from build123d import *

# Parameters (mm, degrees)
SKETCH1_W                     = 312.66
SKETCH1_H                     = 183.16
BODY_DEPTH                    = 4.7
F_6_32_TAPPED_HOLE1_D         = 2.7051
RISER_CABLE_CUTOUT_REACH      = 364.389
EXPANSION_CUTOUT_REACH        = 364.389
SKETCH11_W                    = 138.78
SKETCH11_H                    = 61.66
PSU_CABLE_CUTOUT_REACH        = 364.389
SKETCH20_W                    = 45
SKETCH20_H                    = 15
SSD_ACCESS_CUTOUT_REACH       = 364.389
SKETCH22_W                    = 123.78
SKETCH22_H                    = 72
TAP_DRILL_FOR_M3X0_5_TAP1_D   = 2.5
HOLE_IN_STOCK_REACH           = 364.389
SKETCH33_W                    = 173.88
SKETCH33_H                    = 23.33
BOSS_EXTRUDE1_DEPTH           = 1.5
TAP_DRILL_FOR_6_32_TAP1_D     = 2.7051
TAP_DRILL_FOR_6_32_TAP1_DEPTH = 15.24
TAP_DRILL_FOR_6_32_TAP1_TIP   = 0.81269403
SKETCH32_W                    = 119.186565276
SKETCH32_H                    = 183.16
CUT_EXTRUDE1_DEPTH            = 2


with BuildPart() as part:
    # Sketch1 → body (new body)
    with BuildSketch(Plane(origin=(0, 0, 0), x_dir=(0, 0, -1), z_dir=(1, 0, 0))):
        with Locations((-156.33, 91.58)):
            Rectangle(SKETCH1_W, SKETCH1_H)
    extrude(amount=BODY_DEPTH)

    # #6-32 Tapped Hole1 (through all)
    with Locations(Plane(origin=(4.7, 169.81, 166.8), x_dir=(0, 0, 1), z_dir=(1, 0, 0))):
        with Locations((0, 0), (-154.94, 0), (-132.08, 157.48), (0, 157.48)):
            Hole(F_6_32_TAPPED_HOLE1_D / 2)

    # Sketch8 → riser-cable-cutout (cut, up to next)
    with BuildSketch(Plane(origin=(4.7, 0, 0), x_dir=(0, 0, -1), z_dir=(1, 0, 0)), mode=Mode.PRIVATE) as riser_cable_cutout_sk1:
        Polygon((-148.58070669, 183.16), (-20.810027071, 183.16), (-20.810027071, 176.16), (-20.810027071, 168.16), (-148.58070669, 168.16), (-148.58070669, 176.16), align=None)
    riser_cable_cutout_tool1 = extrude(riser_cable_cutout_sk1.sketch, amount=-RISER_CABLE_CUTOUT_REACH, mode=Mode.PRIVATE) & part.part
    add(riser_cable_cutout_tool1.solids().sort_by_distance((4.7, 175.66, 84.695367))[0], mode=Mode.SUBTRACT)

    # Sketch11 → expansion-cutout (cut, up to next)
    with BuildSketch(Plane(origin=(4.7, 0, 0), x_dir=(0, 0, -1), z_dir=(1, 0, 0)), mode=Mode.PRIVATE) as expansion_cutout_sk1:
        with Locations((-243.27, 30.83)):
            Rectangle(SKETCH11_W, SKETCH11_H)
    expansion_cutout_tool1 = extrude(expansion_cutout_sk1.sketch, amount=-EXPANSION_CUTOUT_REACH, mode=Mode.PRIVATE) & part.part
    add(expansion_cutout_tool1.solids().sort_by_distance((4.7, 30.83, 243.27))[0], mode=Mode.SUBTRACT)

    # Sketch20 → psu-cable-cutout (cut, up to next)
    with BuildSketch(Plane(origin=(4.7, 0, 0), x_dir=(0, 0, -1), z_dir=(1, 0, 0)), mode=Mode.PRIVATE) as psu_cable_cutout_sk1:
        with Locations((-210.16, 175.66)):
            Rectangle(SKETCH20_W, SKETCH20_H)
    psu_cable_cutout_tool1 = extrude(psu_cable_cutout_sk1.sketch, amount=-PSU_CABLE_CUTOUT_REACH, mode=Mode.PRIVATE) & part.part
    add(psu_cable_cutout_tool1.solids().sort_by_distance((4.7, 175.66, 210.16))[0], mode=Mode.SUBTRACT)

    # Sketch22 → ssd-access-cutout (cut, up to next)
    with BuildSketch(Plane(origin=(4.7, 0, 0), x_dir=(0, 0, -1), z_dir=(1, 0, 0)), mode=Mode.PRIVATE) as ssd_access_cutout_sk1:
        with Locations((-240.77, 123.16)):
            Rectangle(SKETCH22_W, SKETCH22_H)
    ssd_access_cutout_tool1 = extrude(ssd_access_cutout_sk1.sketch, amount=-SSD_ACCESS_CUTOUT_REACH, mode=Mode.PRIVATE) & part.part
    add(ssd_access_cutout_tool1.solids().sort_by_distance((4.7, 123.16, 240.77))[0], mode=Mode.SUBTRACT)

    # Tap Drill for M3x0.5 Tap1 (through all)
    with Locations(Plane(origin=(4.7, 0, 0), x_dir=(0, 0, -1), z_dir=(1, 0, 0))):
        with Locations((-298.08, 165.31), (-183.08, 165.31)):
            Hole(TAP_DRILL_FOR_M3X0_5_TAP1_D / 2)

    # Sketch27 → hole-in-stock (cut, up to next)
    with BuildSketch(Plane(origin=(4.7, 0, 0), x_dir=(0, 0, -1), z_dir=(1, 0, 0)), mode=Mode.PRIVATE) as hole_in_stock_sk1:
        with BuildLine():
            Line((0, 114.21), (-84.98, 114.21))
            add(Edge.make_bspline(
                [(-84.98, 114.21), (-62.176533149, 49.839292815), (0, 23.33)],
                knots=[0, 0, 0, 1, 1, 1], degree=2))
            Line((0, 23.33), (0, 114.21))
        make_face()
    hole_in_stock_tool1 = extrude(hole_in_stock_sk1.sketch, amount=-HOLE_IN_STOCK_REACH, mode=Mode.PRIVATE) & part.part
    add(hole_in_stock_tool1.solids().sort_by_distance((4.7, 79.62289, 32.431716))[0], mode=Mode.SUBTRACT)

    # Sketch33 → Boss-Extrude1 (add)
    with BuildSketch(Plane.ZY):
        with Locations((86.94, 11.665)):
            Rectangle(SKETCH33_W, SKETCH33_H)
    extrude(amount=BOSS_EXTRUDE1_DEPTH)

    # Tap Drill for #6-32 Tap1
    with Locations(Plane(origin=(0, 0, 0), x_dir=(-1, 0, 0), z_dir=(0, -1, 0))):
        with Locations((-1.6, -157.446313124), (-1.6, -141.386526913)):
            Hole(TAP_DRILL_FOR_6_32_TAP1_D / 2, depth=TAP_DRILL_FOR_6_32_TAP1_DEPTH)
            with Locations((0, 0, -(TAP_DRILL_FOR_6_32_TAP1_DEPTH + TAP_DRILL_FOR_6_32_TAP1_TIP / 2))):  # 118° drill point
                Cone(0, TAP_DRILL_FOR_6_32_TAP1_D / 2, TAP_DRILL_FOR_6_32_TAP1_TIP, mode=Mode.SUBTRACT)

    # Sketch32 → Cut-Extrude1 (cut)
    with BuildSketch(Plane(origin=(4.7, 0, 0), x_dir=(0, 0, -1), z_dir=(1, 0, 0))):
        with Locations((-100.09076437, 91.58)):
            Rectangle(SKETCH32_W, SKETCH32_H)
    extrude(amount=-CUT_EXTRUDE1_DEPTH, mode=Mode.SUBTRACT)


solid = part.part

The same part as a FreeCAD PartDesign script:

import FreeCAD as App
import Part
import Sketcher
Q = App.Units.Quantity

doc = App.newDocument("Part")
body = doc.addObject("PartDesign::Body", "Body")

sketch1 = body.newObject("Sketcher::SketchObject", "Sketch")
sketch1.AttachmentSupport = (doc.getObject("YZ_Plane"), [""])
sketch1.MapMode = "FlatFace"
sketch1.addGeometry(Part.LineSegment(App.Vector(183, 313, 0), App.Vector(0, 313, 0)), False)
sketch1.addGeometry(Part.LineSegment(App.Vector(0, 313, 0), App.Vector(0, 0, 0)), False)
sketch1.addGeometry(Part.LineSegment(App.Vector(0, 0, 0), App.Vector(183, 0, 0)), False)
sketch1.addGeometry(Part.LineSegment(App.Vector(183, 0, 0), App.Vector(183, 313, 0)), False)
sketch1.addConstraint(Sketcher.Constraint("Coincident", 0, 2, 1, 1))
sketch1.addConstraint(Sketcher.Constraint("Coincident", 1, 2, 2, 1))
sketch1.addConstraint(Sketcher.Constraint("Coincident", 2, 2, 3, 1))
sketch1.addConstraint(Sketcher.Constraint("Coincident", 3, 2, 0, 1))
sketch1.addConstraint(Sketcher.Constraint("Horizontal", 0))
sketch1.addConstraint(Sketcher.Constraint("Vertical", 1))
sketch1.addConstraint(Sketcher.Constraint("Horizontal", 2))
sketch1.addConstraint(Sketcher.Constraint("Vertical", 3))
sketch1.addConstraint(Sketcher.Constraint("Coincident", 1, 2, -1, 1))
sketch1.addConstraint(Sketcher.Constraint("DistanceX", 0, 2, 0, 1, Q("183.16 mm")))
sketch1.addConstraint(Sketcher.Constraint("DistanceY", 1, 2, 1, 1, Q("312.66 mm")))
pad1 = body.newObject("PartDesign::Pad", "Pad")
pad1.Profile = sketch1
pad1.Length = 4.7

sketch2 = body.newObject("Sketcher::SketchObject", "Sketch001")
sketch2.AttachmentSupport = (doc.getObject("YZ_Plane"), [""])
sketch2.MapMode = "FlatFace"
sketch2.AttachmentOffset = App.Placement(App.Vector(0, 0, 4.7), App.Rotation())
sketch2.addGeometry(Part.Circle(App.Vector(169.8, 166.8, 0), App.Vector(0, 0, 1), 1.4), False)
sketch2.addGeometry(Part.Circle(App.Vector(169.8, 11.9, 0), App.Vector(0, 0, 1), 1.4), False)
sketch2.addGeometry(Part.Circle(App.Vector(12.3, 34.7, 0), App.Vector(0, 0, 1), 1.4), False)
sketch2.addGeometry(Part.Circle(App.Vector(12.3, 166.8, 0), App.Vector(0, 0, 1), 1.4), False)
sketch2.addConstraint(Sketcher.Constraint("Equal", 0, 1))
sketch2.addConstraint(Sketcher.Constraint("Equal", 1, 2))
sketch2.addConstraint(Sketcher.Constraint("Equal", 2, 3))
sketch2.addConstraint(Sketcher.Constraint("Horizontal", 0, 3, 3, 3))
sketch2.addConstraint(Sketcher.Constraint("Vertical", 0, 3, 1, 3))
sketch2.addConstraint(Sketcher.Constraint("Vertical", 2, 3, 3, 3))
sketch2.addConstraint(Sketcher.Constraint("Diameter", 0, Q("2.7051 mm")))
sketch2.addConstraint(Sketcher.Constraint("DistanceY", -1, 1, 0, 3, Q("166.8 mm")))
sketch2.addConstraint(Sketcher.Constraint("DistanceX", -1, 1, 0, 3, Q("169.81 mm")))
sketch2.addConstraint(Sketcher.Constraint("DistanceY", -1, 1, 1, 3, Q("11.86 mm")))
sketch2.addConstraint(Sketcher.Constraint("DistanceX", -1, 1, 2, 3, Q("12.33 mm")))
sketch2.addConstraint(Sketcher.Constraint("DistanceY", -1, 1, 2, 3, Q("34.72 mm")))
doc.recompute()
hole = body.newObject("PartDesign::Hole", "Hole")
hole.Profile = sketch2
hole.ThreadType = "None"
hole.Diameter = 2.7051
hole.DepthType = "ThroughAll"

sketch3 = body.newObject("Sketcher::SketchObject", "Sketch002")
sketch3.AttachmentSupport = (doc.getObject("YZ_Plane"), [""])
sketch3.MapMode = "FlatFace"
sketch3.AttachmentOffset = App.Placement(App.Vector(0, 0, 4.7), App.Rotation())
sketch3.addGeometry(Part.LineSegment(App.Vector(183, 21, 0), App.Vector(183, 149, 0)), False)
sketch3.addGeometry(Part.LineSegment(App.Vector(183, 149, 0), App.Vector(168, 149, 0)), False)
sketch3.addGeometry(Part.LineSegment(App.Vector(168, 149, 0), App.Vector(168, 21, 0)), False)
sketch3.addGeometry(Part.LineSegment(App.Vector(168, 21, 0), App.Vector(183, 21, 0)), False)
sketch3.addConstraint(Sketcher.Constraint("Coincident", 0, 2, 1, 1))
sketch3.addConstraint(Sketcher.Constraint("Coincident", 1, 2, 2, 1))
sketch3.addConstraint(Sketcher.Constraint("Coincident", 2, 2, 3, 1))
sketch3.addConstraint(Sketcher.Constraint("Coincident", 3, 2, 0, 1))
sketch3.addConstraint(Sketcher.Constraint("Vertical", 0))
sketch3.addConstraint(Sketcher.Constraint("Horizontal", 1))
sketch3.addConstraint(Sketcher.Constraint("Vertical", 2))
sketch3.addConstraint(Sketcher.Constraint("Horizontal", 3))
sketch3.addConstraint(Sketcher.Constraint("DistanceX", 1, 2, 1, 1, Q("15 mm")))
sketch3.addConstraint(Sketcher.Constraint("DistanceX", -1, 1, 0, 2, Q("183.16 mm")))
sketch3.addConstraint(Sketcher.Constraint("DistanceY", 0, 1, 0, 2, Q("127.77068 mm")))
sketch3.addConstraint(Sketcher.Constraint("DistanceY", -1, 1, 0, 2, Q("148.580707 mm")))
pocket1 = body.newObject("PartDesign::Pocket", "Pocket")
pocket1.Profile = sketch3
pocket1.Type = "UpToFirst"

sketch4 = body.newObject("Sketcher::SketchObject", "Sketch003")
sketch4.AttachmentSupport = (doc.getObject("YZ_Plane"), [""])
sketch4.MapMode = "FlatFace"
sketch4.AttachmentOffset = App.Placement(App.Vector(0, 0, 4.7), App.Rotation())
sketch4.addGeometry(Part.LineSegment(App.Vector(62, 313, 0), App.Vector(0, 313, 0)), False)
sketch4.addGeometry(Part.LineSegment(App.Vector(0, 313, 0), App.Vector(0, 174, 0)), False)
sketch4.addGeometry(Part.LineSegment(App.Vector(0, 174, 0), App.Vector(62, 174, 0)), False)
sketch4.addGeometry(Part.LineSegment(App.Vector(62, 174, 0), App.Vector(62, 313, 0)), False)
sketch4.addConstraint(Sketcher.Constraint("Coincident", 0, 2, 1, 1))
sketch4.addConstraint(Sketcher.Constraint("Coincident", 1, 2, 2, 1))
sketch4.addConstraint(Sketcher.Constraint("Coincident", 2, 2, 3, 1))
sketch4.addConstraint(Sketcher.Constraint("Coincident", 3, 2, 0, 1))
sketch4.addConstraint(Sketcher.Constraint("Horizontal", 0))
sketch4.addConstraint(Sketcher.Constraint("Vertical", 1))
sketch4.addConstraint(Sketcher.Constraint("Horizontal", 2))
sketch4.addConstraint(Sketcher.Constraint("Vertical", 3))
sketch4.addConstraint(Sketcher.Constraint("PointOnObject", 0, 2, -2))
sketch4.addConstraint(Sketcher.Constraint("DistanceX", 0, 2, 0, 1, Q("61.66 mm")))
sketch4.addConstraint(Sketcher.Constraint("DistanceY", 1, 2, 1, 1, Q("138.78 mm")))
sketch4.addConstraint(Sketcher.Constraint("DistanceY", -1, 1, 0, 2, Q("312.66 mm")))
pocket2 = body.newObject("PartDesign::Pocket", "Pocket001")
pocket2.Profile = sketch4
pocket2.Type = "UpToFirst"

sketch5 = body.newObject("Sketcher::SketchObject", "Sketch004")
sketch5.AttachmentSupport = (doc.getObject("YZ_Plane"), [""])
sketch5.MapMode = "FlatFace"
sketch5.AttachmentOffset = App.Placement(App.Vector(0, 0, 4.7), App.Rotation())
sketch5.addGeometry(Part.LineSegment(App.Vector(183, 233, 0), App.Vector(168, 233, 0)), False)
sketch5.addGeometry(Part.LineSegment(App.Vector(168, 233, 0), App.Vector(168, 188, 0)), False)
sketch5.addGeometry(Part.LineSegment(App.Vector(168, 188, 0), App.Vector(183, 188, 0)), False)
sketch5.addGeometry(Part.LineSegment(App.Vector(183, 188, 0), App.Vector(183, 233, 0)), False)
sketch5.addConstraint(Sketcher.Constraint("Coincident", 0, 2, 1, 1))
sketch5.addConstraint(Sketcher.Constraint("Coincident", 1, 2, 2, 1))
sketch5.addConstraint(Sketcher.Constraint("Coincident", 2, 2, 3, 1))
sketch5.addConstraint(Sketcher.Constraint("Coincident", 3, 2, 0, 1))
sketch5.addConstraint(Sketcher.Constraint("Horizontal", 0))
sketch5.addConstraint(Sketcher.Constraint("Vertical", 1))
sketch5.addConstraint(Sketcher.Constraint("Horizontal", 2))
sketch5.addConstraint(Sketcher.Constraint("Vertical", 3))
sketch5.addConstraint(Sketcher.Constraint("DistanceX", 0, 2, 0, 1, Q("15 mm")))
sketch5.addConstraint(Sketcher.Constraint("DistanceY", 1, 2, 1, 1, Q("45 mm")))
sketch5.addConstraint(Sketcher.Constraint("DistanceX", -1, 1, 0, 2, Q("168.16 mm")))
sketch5.addConstraint(Sketcher.Constraint("DistanceY", -1, 1, 0, 2, Q("232.66 mm")))
pocket3 = body.newObject("PartDesign::Pocket", "Pocket002")
pocket3.Profile = sketch5
pocket3.Type = "UpToFirst"

sketch6 = body.newObject("Sketcher::SketchObject", "Sketch005")
sketch6.AttachmentSupport = (doc.getObject("YZ_Plane"), [""])
sketch6.MapMode = "FlatFace"
sketch6.AttachmentOffset = App.Placement(App.Vector(0, 0, 4.7), App.Rotation())
sketch6.addGeometry(Part.LineSegment(App.Vector(159, 303, 0), App.Vector(87, 303, 0)), False)
sketch6.addGeometry(Part.LineSegment(App.Vector(87, 303, 0), App.Vector(87, 179, 0)), False)
sketch6.addGeometry(Part.LineSegment(App.Vector(87, 179, 0), App.Vector(159, 179, 0)), False)
sketch6.addGeometry(Part.LineSegment(App.Vector(159, 179, 0), App.Vector(159, 303, 0)), False)
sketch6.addConstraint(Sketcher.Constraint("Coincident", 0, 2, 1, 1))
sketch6.addConstraint(Sketcher.Constraint("Coincident", 1, 2, 2, 1))
sketch6.addConstraint(Sketcher.Constraint("Coincident", 2, 2, 3, 1))
sketch6.addConstraint(Sketcher.Constraint("Coincident", 3, 2, 0, 1))
sketch6.addConstraint(Sketcher.Constraint("Horizontal", 0))
sketch6.addConstraint(Sketcher.Constraint("Vertical", 1))
sketch6.addConstraint(Sketcher.Constraint("Horizontal", 2))
sketch6.addConstraint(Sketcher.Constraint("Vertical", 3))
sketch6.addConstraint(Sketcher.Constraint("DistanceX", 0, 2, 0, 1, Q("72 mm")))
sketch6.addConstraint(Sketcher.Constraint("DistanceY", 1, 2, 1, 1, Q("123.78 mm")))
sketch6.addConstraint(Sketcher.Constraint("DistanceX", -1, 1, 0, 2, Q("87.16 mm")))
sketch6.addConstraint(Sketcher.Constraint("DistanceY", -1, 1, 0, 2, Q("302.66 mm")))
pocket4 = body.newObject("PartDesign::Pocket", "Pocket003")
pocket4.Profile = sketch6
pocket4.Type = "UpToFirst"

sketch7 = body.newObject("Sketcher::SketchObject", "Sketch006")
sketch7.AttachmentSupport = (doc.getObject("YZ_Plane"), [""])
sketch7.MapMode = "FlatFace"
sketch7.AttachmentOffset = App.Placement(App.Vector(0, 0, 4.7), App.Rotation())
sketch7.addGeometry(Part.Circle(App.Vector(165.3, 298.1, 0), App.Vector(0, 0, 1), 1.2), False)
sketch7.addGeometry(Part.Circle(App.Vector(165.3, 183.1, 0), App.Vector(0, 0, 1), 1.2), False)
sketch7.addConstraint(Sketcher.Constraint("Equal", 0, 1))
sketch7.addConstraint(Sketcher.Constraint("Vertical", 0, 3, 1, 3))
sketch7.addConstraint(Sketcher.Constraint("Diameter", 0, Q("2.5 mm")))
sketch7.addConstraint(Sketcher.Constraint("DistanceY", 1, 3, 0, 3, Q("115 mm")))
sketch7.addConstraint(Sketcher.Constraint("DistanceX", -1, 1, 0, 3, Q("165.31 mm")))
sketch7.addConstraint(Sketcher.Constraint("DistanceY", -1, 1, 0, 3, Q("298.08 mm")))
doc.recompute()
hole2 = body.newObject("PartDesign::Hole", "Hole001")
hole2.Profile = sketch7
hole2.ThreadType = "None"
hole2.Diameter = 2.5
hole2.DepthType = "ThroughAll"

sketch8 = body.newObject("Sketcher::SketchObject", "Sketch007")
sketch8.AttachmentSupport = (doc.getObject("YZ_Plane"), [""])
sketch8.MapMode = "FlatFace"
sketch8.AttachmentOffset = App.Placement(App.Vector(0, 0, 4.7), App.Rotation())
sketch8.addGeometry(Part.LineSegment(App.Vector(114.21, 0, 0), App.Vector(114.21, 84.98, 0)), False)
sketch8.addGeometry(Part.BSplineCurve([App.Vector(114.21, 84.98, 0), App.Vector(49.839293, 62.176533, 0), App.Vector(23.33, 0, 0)], [3, 3], [0, 1], False, 2, [1, 1, 1], False), False)
sketch8.addGeometry(Part.LineSegment(App.Vector(23.33, 0, 0), App.Vector(114.21, 0, 0)), False)
sketch8.addConstraint(Sketcher.Constraint("Block", 1))
sketch8.addConstraint(Sketcher.Constraint("Coincident", 0, 2, 1, 1))
sketch8.addConstraint(Sketcher.Constraint("Coincident", 1, 2, 2, 1))
sketch8.addConstraint(Sketcher.Constraint("Coincident", 2, 2, 0, 1))
sketch8.addConstraint(Sketcher.Constraint("Vertical", 0))
sketch8.addConstraint(Sketcher.Constraint("Horizontal", 2))
pocket5 = body.newObject("PartDesign::Pocket", "Pocket004")
pocket5.Profile = sketch8
pocket5.Type = "UpToFirst"

sketch9 = body.newObject("Sketcher::SketchObject", "Sketch008")
sketch9.AttachmentSupport = (doc.getObject("YZ_Plane"), [""])
sketch9.MapMode = "FlatFace"
sketch9.addGeometry(Part.LineSegment(App.Vector(23, 0, 0), App.Vector(0, 0, 0)), False)
sketch9.addGeometry(Part.LineSegment(App.Vector(0, 0, 0), App.Vector(0, 174, 0)), False)
sketch9.addGeometry(Part.LineSegment(App.Vector(0, 174, 0), App.Vector(23, 174, 0)), False)
sketch9.addGeometry(Part.LineSegment(App.Vector(23, 174, 0), App.Vector(23, 0, 0)), False)
sketch9.addConstraint(Sketcher.Constraint("Coincident", 0, 2, 1, 1))
sketch9.addConstraint(Sketcher.Constraint("Coincident", 1, 2, 2, 1))
sketch9.addConstraint(Sketcher.Constraint("Coincident", 2, 2, 3, 1))
sketch9.addConstraint(Sketcher.Constraint("Coincident", 3, 2, 0, 1))
sketch9.addConstraint(Sketcher.Constraint("Horizontal", 0))
sketch9.addConstraint(Sketcher.Constraint("Vertical", 1))
sketch9.addConstraint(Sketcher.Constraint("Horizontal", 2))
sketch9.addConstraint(Sketcher.Constraint("Vertical", 3))
sketch9.addConstraint(Sketcher.Constraint("Coincident", 0, 2, -1, 1))
sketch9.addConstraint(Sketcher.Constraint("DistanceX", 0, 2, 0, 1, Q("23.33 mm")))
sketch9.addConstraint(Sketcher.Constraint("DistanceY", 1, 1, 1, 2, Q("173.88 mm")))
pad2 = body.newObject("PartDesign::Pad", "Pad001")
pad2.Profile = sketch9
pad2.Length = 1.5
pad2.Reversed = True

sketch10 = body.newObject("Sketcher::SketchObject", "Sketch009")
sketch10.AttachmentSupport = (doc.getObject("XZ_Plane"), [""])
sketch10.MapMode = "FlatFace"
sketch10.addGeometry(Part.Circle(App.Vector(1.6, 157.4, 0), App.Vector(0, 0, 1), 1.4), False)
sketch10.addGeometry(Part.Circle(App.Vector(1.6, 141.4, 0), App.Vector(0, 0, 1), 1.4), False)
sketch10.addConstraint(Sketcher.Constraint("Equal", 0, 1))
sketch10.addConstraint(Sketcher.Constraint("Vertical", 0, 3, 1, 3))
sketch10.addConstraint(Sketcher.Constraint("Diameter", 0, Q("2.7051 mm")))
sketch10.addConstraint(Sketcher.Constraint("DistanceX", -1, 1, 0, 3, Q("1.6 mm")))
sketch10.addConstraint(Sketcher.Constraint("DistanceY", -1, 1, 0, 3, Q("157.446313 mm")))
sketch10.addConstraint(Sketcher.Constraint("DistanceY", -1, 1, 1, 3, Q("141.386527 mm")))
doc.recompute()
hole3 = body.newObject("PartDesign::Hole", "Hole002")
hole3.Profile = sketch10
hole3.ThreadType = "None"
hole3.Diameter = 2.7051
hole3.DepthType = "Dimension"
hole3.Depth = 15.24
hole3.DrillPoint = "Angled"
hole3.DrillPointAngle = 118

sketch11 = body.newObject("Sketcher::SketchObject", "Sketch010")
sketch11.AttachmentSupport = (doc.getObject("YZ_Plane"), [""])
sketch11.MapMode = "FlatFace"
sketch11.AttachmentOffset = App.Placement(App.Vector(0, 0, 4.7), App.Rotation())
sketch11.addGeometry(Part.LineSegment(App.Vector(183, 160, 0), App.Vector(0, 160, 0)), False)
sketch11.addGeometry(Part.LineSegment(App.Vector(0, 160, 0), App.Vector(0, 40, 0)), False)
sketch11.addGeometry(Part.LineSegment(App.Vector(0, 40, 0), App.Vector(183, 40, 0)), False)
sketch11.addGeometry(Part.LineSegment(App.Vector(183, 40, 0), App.Vector(183, 160, 0)), False)
sketch11.addConstraint(Sketcher.Constraint("Coincident", 0, 2, 1, 1))
sketch11.addConstraint(Sketcher.Constraint("Coincident", 1, 2, 2, 1))
sketch11.addConstraint(Sketcher.Constraint("Coincident", 2, 2, 3, 1))
sketch11.addConstraint(Sketcher.Constraint("Coincident", 3, 2, 0, 1))
sketch11.addConstraint(Sketcher.Constraint("Horizontal", 0))
sketch11.addConstraint(Sketcher.Constraint("Vertical", 1))
sketch11.addConstraint(Sketcher.Constraint("Horizontal", 2))
sketch11.addConstraint(Sketcher.Constraint("Vertical", 3))
sketch11.addConstraint(Sketcher.Constraint("PointOnObject", 0, 2, -2))
sketch11.addConstraint(Sketcher.Constraint("DistanceX", 0, 2, 0, 1, Q("183.16 mm")))
sketch11.addConstraint(Sketcher.Constraint("DistanceY", 1, 2, 1, 1, Q("119.186565 mm")))
sketch11.addConstraint(Sketcher.Constraint("DistanceY", -1, 1, 1, 2, Q("40.497482 mm")))
pocket6 = body.newObject("PartDesign::Pocket", "Pocket005")
pocket6.Profile = sketch11
pocket6.Length = 2

doc.recompute()
